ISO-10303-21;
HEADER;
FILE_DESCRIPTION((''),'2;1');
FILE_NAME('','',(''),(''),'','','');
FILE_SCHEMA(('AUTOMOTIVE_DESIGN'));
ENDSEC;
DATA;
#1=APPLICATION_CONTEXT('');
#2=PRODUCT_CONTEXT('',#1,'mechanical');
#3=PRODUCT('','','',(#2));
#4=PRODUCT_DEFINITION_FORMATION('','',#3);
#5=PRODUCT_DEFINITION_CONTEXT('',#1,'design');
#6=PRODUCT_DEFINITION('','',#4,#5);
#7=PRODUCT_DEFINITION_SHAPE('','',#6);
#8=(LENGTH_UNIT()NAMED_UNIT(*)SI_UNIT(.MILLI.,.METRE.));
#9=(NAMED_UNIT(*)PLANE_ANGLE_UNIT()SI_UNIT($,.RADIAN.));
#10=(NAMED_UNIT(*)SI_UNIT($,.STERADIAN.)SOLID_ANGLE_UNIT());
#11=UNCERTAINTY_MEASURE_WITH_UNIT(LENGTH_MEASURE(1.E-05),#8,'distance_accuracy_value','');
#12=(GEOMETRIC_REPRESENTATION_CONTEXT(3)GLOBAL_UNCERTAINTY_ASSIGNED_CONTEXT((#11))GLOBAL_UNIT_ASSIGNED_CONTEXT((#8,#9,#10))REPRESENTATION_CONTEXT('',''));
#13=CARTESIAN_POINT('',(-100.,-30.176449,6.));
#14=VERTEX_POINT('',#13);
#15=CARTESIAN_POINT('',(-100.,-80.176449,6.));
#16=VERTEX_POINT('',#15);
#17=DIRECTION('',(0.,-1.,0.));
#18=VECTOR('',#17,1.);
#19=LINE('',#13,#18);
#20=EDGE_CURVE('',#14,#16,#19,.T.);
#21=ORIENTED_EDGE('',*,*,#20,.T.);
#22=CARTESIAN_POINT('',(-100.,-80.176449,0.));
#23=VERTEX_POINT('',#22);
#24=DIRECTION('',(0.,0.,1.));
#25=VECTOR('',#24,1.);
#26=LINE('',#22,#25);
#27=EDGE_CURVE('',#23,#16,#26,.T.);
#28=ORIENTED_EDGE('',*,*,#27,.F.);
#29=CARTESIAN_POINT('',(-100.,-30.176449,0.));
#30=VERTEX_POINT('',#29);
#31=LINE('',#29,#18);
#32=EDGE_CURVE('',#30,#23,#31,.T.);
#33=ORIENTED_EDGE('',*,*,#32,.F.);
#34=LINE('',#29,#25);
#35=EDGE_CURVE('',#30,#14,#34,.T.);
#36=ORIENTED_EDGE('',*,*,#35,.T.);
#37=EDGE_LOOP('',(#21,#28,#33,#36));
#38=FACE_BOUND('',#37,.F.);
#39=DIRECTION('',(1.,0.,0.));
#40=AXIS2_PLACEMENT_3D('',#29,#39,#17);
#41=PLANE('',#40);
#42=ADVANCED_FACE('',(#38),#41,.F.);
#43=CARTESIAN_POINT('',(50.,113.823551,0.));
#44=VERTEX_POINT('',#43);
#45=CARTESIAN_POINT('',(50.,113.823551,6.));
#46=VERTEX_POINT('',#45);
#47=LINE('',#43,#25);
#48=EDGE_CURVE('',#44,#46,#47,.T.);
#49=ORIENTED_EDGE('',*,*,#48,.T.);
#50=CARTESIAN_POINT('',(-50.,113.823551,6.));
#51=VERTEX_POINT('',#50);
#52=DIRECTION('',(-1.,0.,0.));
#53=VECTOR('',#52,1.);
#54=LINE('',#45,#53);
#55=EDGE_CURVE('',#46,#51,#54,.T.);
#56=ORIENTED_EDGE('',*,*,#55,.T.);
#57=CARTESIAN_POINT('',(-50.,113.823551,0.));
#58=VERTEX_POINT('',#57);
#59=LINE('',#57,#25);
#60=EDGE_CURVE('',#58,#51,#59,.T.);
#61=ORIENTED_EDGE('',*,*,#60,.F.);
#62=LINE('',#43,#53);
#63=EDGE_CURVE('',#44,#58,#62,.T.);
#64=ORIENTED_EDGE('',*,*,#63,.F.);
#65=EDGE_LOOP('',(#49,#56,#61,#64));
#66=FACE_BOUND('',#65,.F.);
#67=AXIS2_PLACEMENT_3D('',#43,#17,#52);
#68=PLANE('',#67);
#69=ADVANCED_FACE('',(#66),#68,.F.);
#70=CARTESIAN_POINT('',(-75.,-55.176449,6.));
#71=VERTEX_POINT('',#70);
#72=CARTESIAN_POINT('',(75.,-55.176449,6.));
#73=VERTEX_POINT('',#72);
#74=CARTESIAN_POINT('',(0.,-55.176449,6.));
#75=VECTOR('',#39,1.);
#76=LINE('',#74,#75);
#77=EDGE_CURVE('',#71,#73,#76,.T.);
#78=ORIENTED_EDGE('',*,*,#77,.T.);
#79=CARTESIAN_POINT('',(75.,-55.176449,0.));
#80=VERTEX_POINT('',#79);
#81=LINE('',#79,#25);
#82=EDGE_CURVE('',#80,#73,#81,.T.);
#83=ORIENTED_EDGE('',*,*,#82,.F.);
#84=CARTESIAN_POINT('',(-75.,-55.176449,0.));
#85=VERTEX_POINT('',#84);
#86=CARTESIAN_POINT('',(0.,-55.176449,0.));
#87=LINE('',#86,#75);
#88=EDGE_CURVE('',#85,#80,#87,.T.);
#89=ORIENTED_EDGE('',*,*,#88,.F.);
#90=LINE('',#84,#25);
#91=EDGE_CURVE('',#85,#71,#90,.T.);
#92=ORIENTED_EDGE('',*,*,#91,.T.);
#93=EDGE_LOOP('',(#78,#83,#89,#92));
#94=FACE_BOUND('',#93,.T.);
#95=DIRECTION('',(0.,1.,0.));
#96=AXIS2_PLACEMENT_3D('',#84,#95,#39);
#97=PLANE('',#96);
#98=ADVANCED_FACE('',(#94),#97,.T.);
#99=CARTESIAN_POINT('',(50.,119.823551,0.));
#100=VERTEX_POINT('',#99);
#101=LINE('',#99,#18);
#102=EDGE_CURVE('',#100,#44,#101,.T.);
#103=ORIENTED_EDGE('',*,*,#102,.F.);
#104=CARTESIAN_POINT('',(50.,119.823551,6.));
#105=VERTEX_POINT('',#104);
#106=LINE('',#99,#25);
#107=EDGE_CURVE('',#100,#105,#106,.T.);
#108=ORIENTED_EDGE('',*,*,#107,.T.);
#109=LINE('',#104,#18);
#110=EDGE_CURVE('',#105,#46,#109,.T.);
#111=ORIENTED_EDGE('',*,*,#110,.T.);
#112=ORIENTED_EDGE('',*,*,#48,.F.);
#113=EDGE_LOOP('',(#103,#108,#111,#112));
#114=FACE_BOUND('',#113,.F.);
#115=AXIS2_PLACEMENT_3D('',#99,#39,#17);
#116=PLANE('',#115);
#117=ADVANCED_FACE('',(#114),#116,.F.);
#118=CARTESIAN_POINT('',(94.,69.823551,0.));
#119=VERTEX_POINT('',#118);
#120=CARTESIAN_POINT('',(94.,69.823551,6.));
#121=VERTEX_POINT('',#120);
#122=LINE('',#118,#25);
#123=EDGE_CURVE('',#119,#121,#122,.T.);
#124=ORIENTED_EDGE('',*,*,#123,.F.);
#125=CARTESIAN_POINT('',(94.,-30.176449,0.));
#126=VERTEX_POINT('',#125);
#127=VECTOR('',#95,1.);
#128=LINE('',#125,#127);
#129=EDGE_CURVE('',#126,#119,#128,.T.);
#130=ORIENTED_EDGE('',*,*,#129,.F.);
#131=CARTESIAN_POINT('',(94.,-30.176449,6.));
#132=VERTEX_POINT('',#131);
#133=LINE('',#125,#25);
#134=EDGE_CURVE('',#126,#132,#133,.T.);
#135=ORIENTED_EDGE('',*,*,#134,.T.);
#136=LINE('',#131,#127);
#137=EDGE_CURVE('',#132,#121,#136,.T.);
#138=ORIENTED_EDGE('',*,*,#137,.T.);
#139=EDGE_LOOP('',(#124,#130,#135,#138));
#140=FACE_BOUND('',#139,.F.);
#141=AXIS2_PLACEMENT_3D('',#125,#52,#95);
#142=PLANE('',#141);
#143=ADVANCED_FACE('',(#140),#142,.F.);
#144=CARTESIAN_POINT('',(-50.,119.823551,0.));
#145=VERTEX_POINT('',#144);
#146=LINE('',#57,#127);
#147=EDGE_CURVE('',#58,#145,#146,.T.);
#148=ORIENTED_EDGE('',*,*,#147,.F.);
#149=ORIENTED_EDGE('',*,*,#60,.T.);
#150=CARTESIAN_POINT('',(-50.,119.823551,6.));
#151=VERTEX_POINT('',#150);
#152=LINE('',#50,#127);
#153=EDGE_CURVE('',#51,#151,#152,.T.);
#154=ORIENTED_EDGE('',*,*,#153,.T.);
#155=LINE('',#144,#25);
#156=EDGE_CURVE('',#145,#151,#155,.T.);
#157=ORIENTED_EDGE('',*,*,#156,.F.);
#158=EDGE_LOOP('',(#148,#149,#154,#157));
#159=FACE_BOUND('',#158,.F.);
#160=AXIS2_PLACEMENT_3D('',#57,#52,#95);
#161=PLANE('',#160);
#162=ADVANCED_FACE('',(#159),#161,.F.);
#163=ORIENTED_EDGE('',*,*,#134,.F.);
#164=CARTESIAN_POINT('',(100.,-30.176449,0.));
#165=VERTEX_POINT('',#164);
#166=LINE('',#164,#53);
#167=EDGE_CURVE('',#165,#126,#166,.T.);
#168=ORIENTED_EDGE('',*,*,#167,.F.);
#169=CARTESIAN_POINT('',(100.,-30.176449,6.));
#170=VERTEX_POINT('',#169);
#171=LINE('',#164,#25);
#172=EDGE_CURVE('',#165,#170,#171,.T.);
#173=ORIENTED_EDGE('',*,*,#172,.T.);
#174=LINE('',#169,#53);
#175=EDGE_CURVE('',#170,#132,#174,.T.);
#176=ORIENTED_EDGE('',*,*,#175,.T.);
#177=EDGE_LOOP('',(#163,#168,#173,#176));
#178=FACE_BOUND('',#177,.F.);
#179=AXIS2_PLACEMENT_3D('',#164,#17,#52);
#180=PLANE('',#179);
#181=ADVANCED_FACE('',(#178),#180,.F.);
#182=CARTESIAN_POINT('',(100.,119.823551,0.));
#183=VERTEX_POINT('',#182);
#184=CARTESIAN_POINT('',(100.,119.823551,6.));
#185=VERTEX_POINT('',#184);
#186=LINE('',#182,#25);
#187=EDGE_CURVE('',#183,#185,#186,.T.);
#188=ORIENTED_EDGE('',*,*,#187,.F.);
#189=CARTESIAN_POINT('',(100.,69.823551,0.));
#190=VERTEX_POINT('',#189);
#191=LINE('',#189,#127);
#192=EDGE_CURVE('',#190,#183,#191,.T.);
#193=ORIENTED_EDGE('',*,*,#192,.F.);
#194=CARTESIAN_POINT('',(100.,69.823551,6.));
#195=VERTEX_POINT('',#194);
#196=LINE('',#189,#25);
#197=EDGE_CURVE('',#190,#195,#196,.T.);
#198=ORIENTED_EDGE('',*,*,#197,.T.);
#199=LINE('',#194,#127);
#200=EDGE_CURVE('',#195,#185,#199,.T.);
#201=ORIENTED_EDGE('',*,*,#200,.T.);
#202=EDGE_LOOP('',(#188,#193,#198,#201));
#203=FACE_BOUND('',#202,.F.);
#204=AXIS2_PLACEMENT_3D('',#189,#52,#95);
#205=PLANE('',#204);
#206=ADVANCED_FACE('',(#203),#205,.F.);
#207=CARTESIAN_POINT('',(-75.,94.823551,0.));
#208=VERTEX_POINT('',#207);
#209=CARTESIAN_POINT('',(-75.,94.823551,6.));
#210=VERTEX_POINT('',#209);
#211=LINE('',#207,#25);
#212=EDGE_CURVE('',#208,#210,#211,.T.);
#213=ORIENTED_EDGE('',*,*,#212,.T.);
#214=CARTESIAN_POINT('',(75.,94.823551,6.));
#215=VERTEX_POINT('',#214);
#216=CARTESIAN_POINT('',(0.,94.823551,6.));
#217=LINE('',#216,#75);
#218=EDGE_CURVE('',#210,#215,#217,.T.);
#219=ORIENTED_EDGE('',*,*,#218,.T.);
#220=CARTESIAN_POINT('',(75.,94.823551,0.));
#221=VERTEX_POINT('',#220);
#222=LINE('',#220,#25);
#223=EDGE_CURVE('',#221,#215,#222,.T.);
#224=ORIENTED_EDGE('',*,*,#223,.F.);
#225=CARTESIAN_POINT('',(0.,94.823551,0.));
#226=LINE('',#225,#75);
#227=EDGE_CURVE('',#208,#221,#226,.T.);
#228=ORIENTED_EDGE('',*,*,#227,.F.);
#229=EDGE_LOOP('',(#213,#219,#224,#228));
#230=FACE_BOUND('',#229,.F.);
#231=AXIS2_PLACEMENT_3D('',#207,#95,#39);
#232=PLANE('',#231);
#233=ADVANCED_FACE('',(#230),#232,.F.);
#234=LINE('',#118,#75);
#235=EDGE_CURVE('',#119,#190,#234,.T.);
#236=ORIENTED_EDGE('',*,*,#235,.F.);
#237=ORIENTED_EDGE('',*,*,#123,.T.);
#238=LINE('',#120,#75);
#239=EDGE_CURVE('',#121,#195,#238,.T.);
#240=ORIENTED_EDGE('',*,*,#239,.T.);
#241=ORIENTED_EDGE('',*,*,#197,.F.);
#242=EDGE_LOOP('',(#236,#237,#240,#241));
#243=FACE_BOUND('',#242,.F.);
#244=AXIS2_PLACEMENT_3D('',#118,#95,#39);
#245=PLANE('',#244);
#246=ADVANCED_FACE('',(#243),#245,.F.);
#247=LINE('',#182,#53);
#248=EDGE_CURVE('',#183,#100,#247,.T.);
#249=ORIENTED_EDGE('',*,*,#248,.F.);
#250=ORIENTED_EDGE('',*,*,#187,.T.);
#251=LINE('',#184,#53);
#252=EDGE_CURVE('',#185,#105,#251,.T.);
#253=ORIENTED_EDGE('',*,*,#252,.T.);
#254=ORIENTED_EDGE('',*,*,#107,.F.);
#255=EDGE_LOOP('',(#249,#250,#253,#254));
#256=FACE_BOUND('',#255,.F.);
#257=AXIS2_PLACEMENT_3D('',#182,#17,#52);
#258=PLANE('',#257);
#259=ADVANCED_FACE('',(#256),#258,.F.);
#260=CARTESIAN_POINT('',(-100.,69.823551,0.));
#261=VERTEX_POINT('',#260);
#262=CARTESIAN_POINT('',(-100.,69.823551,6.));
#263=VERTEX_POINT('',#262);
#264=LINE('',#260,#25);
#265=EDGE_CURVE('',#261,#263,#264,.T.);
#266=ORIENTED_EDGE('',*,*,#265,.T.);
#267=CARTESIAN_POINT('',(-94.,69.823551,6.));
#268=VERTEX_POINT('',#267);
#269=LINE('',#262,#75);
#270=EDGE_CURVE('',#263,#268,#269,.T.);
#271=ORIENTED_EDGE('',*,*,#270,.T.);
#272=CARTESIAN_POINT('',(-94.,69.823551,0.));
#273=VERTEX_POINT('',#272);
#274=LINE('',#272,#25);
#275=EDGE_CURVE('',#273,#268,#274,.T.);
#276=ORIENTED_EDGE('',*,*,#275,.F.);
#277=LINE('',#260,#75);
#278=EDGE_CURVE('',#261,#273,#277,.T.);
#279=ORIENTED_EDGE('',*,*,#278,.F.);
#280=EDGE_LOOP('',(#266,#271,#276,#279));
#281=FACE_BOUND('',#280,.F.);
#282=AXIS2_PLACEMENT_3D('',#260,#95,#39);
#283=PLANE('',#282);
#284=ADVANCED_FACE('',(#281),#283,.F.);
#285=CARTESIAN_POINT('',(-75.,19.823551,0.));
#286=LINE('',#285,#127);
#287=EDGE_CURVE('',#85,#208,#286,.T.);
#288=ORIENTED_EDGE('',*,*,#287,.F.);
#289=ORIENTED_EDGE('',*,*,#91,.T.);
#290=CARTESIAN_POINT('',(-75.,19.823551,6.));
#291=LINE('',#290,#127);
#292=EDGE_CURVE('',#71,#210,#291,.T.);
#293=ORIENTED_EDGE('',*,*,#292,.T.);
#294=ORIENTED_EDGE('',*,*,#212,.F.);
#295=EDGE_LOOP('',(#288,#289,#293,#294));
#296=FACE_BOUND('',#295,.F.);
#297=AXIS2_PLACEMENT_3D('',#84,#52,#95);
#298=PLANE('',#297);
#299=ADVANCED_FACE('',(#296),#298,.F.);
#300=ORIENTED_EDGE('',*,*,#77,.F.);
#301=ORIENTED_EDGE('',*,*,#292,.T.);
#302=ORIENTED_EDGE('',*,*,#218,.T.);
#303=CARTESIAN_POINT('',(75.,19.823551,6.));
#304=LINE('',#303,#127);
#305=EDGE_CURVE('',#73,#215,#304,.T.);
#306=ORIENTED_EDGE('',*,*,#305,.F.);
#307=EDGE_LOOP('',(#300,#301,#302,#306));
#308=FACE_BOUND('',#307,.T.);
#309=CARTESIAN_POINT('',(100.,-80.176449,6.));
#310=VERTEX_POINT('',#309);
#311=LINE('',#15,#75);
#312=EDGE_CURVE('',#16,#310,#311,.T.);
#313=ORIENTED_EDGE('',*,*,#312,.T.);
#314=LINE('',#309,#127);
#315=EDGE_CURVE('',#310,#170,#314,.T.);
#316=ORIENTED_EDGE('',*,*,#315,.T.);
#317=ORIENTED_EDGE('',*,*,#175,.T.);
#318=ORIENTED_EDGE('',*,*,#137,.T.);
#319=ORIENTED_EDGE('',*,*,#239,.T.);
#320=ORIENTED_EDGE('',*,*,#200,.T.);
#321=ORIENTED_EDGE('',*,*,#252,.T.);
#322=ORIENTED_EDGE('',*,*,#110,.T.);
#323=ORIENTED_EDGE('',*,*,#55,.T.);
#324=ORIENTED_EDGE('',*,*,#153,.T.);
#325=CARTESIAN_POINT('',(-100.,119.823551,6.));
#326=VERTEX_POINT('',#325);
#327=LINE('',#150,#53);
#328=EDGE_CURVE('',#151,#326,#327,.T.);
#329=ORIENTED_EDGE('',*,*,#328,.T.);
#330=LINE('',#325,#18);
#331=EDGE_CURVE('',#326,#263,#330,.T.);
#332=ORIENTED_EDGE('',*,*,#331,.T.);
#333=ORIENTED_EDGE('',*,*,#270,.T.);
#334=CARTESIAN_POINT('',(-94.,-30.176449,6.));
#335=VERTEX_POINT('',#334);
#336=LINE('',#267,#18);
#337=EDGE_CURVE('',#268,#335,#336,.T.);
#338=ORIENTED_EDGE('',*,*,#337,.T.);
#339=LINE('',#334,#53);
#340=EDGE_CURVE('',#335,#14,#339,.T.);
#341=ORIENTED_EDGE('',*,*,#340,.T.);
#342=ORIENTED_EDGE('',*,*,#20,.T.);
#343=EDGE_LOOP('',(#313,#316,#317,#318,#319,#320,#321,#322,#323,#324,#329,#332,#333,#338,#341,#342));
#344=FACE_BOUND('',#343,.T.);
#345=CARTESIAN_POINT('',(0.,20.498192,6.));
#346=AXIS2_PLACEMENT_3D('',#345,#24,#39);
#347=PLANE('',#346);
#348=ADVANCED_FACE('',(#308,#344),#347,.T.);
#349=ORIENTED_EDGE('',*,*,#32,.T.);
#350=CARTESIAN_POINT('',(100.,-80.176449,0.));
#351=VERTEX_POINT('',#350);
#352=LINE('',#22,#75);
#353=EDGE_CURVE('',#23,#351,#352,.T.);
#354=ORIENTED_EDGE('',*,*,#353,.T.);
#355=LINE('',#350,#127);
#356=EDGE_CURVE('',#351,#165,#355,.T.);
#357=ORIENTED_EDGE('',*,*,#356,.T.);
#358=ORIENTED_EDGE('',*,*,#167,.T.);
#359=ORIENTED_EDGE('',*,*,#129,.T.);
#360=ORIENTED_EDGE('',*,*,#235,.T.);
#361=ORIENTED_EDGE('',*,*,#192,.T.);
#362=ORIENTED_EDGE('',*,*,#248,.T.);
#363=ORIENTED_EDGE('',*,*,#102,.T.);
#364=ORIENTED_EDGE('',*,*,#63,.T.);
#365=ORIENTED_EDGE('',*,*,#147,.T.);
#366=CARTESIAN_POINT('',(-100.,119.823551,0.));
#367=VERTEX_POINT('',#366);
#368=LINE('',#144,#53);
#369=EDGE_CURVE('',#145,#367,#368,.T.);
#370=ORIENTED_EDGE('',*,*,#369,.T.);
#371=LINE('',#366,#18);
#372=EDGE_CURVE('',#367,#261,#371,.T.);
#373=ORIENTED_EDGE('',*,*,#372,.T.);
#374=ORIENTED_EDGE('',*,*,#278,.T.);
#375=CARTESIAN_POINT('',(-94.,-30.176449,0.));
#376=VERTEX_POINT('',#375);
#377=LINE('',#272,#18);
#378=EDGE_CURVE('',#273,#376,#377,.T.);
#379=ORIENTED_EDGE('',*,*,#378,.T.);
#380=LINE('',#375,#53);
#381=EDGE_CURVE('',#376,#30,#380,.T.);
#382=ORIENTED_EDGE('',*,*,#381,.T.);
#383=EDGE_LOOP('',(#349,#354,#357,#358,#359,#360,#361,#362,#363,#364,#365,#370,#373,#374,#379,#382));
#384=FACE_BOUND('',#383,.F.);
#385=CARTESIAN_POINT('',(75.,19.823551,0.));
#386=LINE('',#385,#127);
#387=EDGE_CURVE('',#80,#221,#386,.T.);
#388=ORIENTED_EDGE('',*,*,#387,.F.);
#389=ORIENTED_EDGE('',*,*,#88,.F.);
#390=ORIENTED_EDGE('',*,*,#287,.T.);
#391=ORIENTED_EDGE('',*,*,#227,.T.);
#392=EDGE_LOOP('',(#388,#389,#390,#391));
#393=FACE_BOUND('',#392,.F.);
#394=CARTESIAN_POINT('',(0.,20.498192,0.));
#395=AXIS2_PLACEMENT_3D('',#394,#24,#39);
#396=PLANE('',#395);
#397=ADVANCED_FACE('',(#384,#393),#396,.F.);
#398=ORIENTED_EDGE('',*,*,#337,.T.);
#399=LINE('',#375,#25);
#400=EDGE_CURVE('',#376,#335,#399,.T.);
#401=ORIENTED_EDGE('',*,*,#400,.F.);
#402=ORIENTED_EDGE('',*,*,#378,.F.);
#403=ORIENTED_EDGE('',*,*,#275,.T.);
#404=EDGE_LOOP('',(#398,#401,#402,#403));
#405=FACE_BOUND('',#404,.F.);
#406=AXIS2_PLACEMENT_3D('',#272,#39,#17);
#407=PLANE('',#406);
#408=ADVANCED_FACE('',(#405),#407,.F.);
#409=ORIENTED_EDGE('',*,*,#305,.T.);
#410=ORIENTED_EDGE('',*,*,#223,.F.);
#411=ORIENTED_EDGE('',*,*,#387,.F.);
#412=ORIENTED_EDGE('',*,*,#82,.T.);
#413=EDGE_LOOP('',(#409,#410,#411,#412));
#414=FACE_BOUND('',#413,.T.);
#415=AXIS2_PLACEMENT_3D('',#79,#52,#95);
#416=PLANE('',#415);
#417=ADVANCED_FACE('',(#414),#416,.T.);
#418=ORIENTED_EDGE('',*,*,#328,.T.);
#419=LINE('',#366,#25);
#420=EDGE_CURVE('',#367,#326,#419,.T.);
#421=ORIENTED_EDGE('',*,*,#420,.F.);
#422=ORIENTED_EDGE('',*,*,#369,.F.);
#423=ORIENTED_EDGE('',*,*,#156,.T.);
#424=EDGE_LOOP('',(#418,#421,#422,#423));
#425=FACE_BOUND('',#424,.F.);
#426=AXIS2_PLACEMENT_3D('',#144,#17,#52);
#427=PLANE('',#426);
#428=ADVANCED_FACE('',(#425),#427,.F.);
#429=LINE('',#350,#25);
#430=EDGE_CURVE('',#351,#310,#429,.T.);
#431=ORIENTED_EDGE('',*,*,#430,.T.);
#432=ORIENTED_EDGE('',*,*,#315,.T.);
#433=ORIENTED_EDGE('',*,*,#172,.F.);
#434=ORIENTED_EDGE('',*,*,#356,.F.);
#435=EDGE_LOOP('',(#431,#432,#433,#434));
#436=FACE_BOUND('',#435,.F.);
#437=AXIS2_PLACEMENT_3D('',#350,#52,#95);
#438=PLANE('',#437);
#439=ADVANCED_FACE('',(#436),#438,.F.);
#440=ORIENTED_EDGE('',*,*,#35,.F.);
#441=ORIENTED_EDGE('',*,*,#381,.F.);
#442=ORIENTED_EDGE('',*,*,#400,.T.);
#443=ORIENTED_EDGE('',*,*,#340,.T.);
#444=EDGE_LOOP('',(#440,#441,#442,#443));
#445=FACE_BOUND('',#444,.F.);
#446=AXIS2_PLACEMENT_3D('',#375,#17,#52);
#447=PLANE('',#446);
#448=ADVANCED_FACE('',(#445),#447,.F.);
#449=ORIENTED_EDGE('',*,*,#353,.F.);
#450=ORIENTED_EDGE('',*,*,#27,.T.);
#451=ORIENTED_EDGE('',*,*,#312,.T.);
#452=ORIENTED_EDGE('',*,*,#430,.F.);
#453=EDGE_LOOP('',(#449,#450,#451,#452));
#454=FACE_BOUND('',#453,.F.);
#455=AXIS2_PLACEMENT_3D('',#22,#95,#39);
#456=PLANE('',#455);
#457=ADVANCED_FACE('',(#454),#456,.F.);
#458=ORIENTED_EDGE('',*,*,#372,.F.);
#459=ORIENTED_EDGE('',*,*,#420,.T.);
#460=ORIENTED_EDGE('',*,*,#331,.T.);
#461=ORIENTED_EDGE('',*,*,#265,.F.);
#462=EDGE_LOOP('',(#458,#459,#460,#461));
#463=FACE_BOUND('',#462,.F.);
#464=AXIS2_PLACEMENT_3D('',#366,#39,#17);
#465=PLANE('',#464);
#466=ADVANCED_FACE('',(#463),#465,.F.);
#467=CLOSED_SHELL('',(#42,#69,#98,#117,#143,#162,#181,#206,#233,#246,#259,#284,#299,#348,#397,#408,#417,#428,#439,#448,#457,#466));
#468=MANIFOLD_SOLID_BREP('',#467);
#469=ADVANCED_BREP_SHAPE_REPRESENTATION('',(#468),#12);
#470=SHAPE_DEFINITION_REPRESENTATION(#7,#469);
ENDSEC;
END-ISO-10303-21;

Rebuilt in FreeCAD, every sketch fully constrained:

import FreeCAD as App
import Part
import Sketcher
from FreeCAD import Vector


def add_polygon(sketch, points):
    """Adds a closed chain of lines whose ends are joined by coincident constraints."""
    first, n = sketch.GeometryCount, len(points)
    for a, b in zip(points, points[1:] + points[:1]):
        sketch.addGeometry(Part.LineSegment(App.Vector(*a, 0), App.Vector(*b, 0)), False)
    for i in range(n):
        sketch.addConstraint(Sketcher.Constraint("Coincident", first + i, 2, first + (i + 1) % n, 1))

doc = App.newDocument("Part")
body = doc.addObject("PartDesign::Body", "Body")

# Sketch on XY plane
sketch1 = body.newObject("Sketcher::SketchObject", "Sketch")
sketch1.AttachmentSupport = (doc.getObject("XY_Plane"), [""])
sketch1.MapMode = "FlatFace"
add_polygon(sketch1, [(-50, 120), (-100, 120), (-100, 70), (-94, 70), (-94, -30), (-100, -30), (-100, -80), (100, -80), (100, -30), (94, -30), (94, 70), (100, 70), (100, 120), (50, 120), (50, 114), (-50, 114)])  # lines 0-15
add_polygon(sketch1, [(75, -55), (-75, -55), (-75, 95), (75, 95)])  # lines 16-19
sketch1.addConstraint(Sketcher.Constraint("Horizontal", 0))
sketch1.addConstraint(Sketcher.Constraint("Vertical", 1))
sketch1.addConstraint(Sketcher.Constraint("Horizontal", 2))
sketch1.addConstraint(Sketcher.Constraint("Vertical", 3))
sketch1.addConstraint(Sketcher.Constraint("Horizontal", 4))
sketch1.addConstraint(Sketcher.Constraint("Vertical", 5))
sketch1.addConstraint(Sketcher.Constraint("Horizontal", 6))
sketch1.addConstraint(Sketcher.Constraint("Vertical", 7))
sketch1.addConstraint(Sketcher.Constraint("Horizontal", 8))
sketch1.addConstraint(Sketcher.Constraint("Vertical", 9))
sketch1.addConstraint(Sketcher.Constraint("Horizontal", 10))
sketch1.addConstraint(Sketcher.Constraint("Vertical", 11))
sketch1.addConstraint(Sketcher.Constraint("Horizontal", 12))
sketch1.addConstraint(Sketcher.Constraint("Vertical", 13))
sketch1.addConstraint(Sketcher.Constraint("Horizontal", 14))
sketch1.addConstraint(Sketcher.Constraint("Vertical", 15))
sketch1.addConstraint(Sketcher.Constraint("Horizontal", 16))
sketch1.addConstraint(Sketcher.Constraint("Vertical", 17))
sketch1.addConstraint(Sketcher.Constraint("Horizontal", 18))
sketch1.addConstraint(Sketcher.Constraint("Vertical", 19))
sketch1.addConstraint(Sketcher.Constraint("Symmetric", 4, 2, 7, 2, -2))
sketch1.addConstraint(Sketcher.Constraint("Symmetric", 2, 2, 9, 2, -2))
sketch1.addConstraint(Sketcher.Constraint("Symmetric", 0, 2, 11, 2, -2))
sketch1.addConstraint(Sketcher.Constraint("Vertical", 1, 2, 4, 2))
sketch1.addConstraint(Sketcher.Constraint("Equal", 0, 12))
sketch1.addConstraint(Sketcher.Constraint("Equal", 12, 1))
sketch1.addConstraint(Sketcher.Constraint("Equal", 14, 3))
sketch1.addConstraint(Sketcher.Constraint("Equal", 1, 5))
sketch1.addConstraint(Sketcher.Constraint("Equal", 10, 13))
sketch1.addConstraint(Sketcher.Constraint("Equal", 18, 17))
sketch1.addConstraint(Sketcher.Constraint("DistanceX", 0, 2, 0, 1, 50.0))
sketch1.addConstraint(Sketcher.Constraint("DistanceX", 2, 1, 2, 2, 6.0))
sketch1.addConstraint(Sketcher.Constraint("DistanceX", 6, 1, 6, 2, 200.0))
sketch1.addConstraint(Sketcher.Constraint("DistanceX", 16, 2, 16, 1, 150.0))
sketch1.addConstraint(Sketcher.Constraint("DistanceX", 16, 2, -1, 1, 75.0))
sketch1.addConstraint(Sketcher.Constraint("DistanceY", 16, 2, 3, 2, 25.0))
sketch1.addConstraint(Sketcher.Constraint("DistanceY", -1, 1, 0, 2, 119.823551))
pad1 = body.newObject("PartDesign::Pad", "Pad")
pad1.Profile = sketch1
pad1.Length = 6

doc.recompute()
